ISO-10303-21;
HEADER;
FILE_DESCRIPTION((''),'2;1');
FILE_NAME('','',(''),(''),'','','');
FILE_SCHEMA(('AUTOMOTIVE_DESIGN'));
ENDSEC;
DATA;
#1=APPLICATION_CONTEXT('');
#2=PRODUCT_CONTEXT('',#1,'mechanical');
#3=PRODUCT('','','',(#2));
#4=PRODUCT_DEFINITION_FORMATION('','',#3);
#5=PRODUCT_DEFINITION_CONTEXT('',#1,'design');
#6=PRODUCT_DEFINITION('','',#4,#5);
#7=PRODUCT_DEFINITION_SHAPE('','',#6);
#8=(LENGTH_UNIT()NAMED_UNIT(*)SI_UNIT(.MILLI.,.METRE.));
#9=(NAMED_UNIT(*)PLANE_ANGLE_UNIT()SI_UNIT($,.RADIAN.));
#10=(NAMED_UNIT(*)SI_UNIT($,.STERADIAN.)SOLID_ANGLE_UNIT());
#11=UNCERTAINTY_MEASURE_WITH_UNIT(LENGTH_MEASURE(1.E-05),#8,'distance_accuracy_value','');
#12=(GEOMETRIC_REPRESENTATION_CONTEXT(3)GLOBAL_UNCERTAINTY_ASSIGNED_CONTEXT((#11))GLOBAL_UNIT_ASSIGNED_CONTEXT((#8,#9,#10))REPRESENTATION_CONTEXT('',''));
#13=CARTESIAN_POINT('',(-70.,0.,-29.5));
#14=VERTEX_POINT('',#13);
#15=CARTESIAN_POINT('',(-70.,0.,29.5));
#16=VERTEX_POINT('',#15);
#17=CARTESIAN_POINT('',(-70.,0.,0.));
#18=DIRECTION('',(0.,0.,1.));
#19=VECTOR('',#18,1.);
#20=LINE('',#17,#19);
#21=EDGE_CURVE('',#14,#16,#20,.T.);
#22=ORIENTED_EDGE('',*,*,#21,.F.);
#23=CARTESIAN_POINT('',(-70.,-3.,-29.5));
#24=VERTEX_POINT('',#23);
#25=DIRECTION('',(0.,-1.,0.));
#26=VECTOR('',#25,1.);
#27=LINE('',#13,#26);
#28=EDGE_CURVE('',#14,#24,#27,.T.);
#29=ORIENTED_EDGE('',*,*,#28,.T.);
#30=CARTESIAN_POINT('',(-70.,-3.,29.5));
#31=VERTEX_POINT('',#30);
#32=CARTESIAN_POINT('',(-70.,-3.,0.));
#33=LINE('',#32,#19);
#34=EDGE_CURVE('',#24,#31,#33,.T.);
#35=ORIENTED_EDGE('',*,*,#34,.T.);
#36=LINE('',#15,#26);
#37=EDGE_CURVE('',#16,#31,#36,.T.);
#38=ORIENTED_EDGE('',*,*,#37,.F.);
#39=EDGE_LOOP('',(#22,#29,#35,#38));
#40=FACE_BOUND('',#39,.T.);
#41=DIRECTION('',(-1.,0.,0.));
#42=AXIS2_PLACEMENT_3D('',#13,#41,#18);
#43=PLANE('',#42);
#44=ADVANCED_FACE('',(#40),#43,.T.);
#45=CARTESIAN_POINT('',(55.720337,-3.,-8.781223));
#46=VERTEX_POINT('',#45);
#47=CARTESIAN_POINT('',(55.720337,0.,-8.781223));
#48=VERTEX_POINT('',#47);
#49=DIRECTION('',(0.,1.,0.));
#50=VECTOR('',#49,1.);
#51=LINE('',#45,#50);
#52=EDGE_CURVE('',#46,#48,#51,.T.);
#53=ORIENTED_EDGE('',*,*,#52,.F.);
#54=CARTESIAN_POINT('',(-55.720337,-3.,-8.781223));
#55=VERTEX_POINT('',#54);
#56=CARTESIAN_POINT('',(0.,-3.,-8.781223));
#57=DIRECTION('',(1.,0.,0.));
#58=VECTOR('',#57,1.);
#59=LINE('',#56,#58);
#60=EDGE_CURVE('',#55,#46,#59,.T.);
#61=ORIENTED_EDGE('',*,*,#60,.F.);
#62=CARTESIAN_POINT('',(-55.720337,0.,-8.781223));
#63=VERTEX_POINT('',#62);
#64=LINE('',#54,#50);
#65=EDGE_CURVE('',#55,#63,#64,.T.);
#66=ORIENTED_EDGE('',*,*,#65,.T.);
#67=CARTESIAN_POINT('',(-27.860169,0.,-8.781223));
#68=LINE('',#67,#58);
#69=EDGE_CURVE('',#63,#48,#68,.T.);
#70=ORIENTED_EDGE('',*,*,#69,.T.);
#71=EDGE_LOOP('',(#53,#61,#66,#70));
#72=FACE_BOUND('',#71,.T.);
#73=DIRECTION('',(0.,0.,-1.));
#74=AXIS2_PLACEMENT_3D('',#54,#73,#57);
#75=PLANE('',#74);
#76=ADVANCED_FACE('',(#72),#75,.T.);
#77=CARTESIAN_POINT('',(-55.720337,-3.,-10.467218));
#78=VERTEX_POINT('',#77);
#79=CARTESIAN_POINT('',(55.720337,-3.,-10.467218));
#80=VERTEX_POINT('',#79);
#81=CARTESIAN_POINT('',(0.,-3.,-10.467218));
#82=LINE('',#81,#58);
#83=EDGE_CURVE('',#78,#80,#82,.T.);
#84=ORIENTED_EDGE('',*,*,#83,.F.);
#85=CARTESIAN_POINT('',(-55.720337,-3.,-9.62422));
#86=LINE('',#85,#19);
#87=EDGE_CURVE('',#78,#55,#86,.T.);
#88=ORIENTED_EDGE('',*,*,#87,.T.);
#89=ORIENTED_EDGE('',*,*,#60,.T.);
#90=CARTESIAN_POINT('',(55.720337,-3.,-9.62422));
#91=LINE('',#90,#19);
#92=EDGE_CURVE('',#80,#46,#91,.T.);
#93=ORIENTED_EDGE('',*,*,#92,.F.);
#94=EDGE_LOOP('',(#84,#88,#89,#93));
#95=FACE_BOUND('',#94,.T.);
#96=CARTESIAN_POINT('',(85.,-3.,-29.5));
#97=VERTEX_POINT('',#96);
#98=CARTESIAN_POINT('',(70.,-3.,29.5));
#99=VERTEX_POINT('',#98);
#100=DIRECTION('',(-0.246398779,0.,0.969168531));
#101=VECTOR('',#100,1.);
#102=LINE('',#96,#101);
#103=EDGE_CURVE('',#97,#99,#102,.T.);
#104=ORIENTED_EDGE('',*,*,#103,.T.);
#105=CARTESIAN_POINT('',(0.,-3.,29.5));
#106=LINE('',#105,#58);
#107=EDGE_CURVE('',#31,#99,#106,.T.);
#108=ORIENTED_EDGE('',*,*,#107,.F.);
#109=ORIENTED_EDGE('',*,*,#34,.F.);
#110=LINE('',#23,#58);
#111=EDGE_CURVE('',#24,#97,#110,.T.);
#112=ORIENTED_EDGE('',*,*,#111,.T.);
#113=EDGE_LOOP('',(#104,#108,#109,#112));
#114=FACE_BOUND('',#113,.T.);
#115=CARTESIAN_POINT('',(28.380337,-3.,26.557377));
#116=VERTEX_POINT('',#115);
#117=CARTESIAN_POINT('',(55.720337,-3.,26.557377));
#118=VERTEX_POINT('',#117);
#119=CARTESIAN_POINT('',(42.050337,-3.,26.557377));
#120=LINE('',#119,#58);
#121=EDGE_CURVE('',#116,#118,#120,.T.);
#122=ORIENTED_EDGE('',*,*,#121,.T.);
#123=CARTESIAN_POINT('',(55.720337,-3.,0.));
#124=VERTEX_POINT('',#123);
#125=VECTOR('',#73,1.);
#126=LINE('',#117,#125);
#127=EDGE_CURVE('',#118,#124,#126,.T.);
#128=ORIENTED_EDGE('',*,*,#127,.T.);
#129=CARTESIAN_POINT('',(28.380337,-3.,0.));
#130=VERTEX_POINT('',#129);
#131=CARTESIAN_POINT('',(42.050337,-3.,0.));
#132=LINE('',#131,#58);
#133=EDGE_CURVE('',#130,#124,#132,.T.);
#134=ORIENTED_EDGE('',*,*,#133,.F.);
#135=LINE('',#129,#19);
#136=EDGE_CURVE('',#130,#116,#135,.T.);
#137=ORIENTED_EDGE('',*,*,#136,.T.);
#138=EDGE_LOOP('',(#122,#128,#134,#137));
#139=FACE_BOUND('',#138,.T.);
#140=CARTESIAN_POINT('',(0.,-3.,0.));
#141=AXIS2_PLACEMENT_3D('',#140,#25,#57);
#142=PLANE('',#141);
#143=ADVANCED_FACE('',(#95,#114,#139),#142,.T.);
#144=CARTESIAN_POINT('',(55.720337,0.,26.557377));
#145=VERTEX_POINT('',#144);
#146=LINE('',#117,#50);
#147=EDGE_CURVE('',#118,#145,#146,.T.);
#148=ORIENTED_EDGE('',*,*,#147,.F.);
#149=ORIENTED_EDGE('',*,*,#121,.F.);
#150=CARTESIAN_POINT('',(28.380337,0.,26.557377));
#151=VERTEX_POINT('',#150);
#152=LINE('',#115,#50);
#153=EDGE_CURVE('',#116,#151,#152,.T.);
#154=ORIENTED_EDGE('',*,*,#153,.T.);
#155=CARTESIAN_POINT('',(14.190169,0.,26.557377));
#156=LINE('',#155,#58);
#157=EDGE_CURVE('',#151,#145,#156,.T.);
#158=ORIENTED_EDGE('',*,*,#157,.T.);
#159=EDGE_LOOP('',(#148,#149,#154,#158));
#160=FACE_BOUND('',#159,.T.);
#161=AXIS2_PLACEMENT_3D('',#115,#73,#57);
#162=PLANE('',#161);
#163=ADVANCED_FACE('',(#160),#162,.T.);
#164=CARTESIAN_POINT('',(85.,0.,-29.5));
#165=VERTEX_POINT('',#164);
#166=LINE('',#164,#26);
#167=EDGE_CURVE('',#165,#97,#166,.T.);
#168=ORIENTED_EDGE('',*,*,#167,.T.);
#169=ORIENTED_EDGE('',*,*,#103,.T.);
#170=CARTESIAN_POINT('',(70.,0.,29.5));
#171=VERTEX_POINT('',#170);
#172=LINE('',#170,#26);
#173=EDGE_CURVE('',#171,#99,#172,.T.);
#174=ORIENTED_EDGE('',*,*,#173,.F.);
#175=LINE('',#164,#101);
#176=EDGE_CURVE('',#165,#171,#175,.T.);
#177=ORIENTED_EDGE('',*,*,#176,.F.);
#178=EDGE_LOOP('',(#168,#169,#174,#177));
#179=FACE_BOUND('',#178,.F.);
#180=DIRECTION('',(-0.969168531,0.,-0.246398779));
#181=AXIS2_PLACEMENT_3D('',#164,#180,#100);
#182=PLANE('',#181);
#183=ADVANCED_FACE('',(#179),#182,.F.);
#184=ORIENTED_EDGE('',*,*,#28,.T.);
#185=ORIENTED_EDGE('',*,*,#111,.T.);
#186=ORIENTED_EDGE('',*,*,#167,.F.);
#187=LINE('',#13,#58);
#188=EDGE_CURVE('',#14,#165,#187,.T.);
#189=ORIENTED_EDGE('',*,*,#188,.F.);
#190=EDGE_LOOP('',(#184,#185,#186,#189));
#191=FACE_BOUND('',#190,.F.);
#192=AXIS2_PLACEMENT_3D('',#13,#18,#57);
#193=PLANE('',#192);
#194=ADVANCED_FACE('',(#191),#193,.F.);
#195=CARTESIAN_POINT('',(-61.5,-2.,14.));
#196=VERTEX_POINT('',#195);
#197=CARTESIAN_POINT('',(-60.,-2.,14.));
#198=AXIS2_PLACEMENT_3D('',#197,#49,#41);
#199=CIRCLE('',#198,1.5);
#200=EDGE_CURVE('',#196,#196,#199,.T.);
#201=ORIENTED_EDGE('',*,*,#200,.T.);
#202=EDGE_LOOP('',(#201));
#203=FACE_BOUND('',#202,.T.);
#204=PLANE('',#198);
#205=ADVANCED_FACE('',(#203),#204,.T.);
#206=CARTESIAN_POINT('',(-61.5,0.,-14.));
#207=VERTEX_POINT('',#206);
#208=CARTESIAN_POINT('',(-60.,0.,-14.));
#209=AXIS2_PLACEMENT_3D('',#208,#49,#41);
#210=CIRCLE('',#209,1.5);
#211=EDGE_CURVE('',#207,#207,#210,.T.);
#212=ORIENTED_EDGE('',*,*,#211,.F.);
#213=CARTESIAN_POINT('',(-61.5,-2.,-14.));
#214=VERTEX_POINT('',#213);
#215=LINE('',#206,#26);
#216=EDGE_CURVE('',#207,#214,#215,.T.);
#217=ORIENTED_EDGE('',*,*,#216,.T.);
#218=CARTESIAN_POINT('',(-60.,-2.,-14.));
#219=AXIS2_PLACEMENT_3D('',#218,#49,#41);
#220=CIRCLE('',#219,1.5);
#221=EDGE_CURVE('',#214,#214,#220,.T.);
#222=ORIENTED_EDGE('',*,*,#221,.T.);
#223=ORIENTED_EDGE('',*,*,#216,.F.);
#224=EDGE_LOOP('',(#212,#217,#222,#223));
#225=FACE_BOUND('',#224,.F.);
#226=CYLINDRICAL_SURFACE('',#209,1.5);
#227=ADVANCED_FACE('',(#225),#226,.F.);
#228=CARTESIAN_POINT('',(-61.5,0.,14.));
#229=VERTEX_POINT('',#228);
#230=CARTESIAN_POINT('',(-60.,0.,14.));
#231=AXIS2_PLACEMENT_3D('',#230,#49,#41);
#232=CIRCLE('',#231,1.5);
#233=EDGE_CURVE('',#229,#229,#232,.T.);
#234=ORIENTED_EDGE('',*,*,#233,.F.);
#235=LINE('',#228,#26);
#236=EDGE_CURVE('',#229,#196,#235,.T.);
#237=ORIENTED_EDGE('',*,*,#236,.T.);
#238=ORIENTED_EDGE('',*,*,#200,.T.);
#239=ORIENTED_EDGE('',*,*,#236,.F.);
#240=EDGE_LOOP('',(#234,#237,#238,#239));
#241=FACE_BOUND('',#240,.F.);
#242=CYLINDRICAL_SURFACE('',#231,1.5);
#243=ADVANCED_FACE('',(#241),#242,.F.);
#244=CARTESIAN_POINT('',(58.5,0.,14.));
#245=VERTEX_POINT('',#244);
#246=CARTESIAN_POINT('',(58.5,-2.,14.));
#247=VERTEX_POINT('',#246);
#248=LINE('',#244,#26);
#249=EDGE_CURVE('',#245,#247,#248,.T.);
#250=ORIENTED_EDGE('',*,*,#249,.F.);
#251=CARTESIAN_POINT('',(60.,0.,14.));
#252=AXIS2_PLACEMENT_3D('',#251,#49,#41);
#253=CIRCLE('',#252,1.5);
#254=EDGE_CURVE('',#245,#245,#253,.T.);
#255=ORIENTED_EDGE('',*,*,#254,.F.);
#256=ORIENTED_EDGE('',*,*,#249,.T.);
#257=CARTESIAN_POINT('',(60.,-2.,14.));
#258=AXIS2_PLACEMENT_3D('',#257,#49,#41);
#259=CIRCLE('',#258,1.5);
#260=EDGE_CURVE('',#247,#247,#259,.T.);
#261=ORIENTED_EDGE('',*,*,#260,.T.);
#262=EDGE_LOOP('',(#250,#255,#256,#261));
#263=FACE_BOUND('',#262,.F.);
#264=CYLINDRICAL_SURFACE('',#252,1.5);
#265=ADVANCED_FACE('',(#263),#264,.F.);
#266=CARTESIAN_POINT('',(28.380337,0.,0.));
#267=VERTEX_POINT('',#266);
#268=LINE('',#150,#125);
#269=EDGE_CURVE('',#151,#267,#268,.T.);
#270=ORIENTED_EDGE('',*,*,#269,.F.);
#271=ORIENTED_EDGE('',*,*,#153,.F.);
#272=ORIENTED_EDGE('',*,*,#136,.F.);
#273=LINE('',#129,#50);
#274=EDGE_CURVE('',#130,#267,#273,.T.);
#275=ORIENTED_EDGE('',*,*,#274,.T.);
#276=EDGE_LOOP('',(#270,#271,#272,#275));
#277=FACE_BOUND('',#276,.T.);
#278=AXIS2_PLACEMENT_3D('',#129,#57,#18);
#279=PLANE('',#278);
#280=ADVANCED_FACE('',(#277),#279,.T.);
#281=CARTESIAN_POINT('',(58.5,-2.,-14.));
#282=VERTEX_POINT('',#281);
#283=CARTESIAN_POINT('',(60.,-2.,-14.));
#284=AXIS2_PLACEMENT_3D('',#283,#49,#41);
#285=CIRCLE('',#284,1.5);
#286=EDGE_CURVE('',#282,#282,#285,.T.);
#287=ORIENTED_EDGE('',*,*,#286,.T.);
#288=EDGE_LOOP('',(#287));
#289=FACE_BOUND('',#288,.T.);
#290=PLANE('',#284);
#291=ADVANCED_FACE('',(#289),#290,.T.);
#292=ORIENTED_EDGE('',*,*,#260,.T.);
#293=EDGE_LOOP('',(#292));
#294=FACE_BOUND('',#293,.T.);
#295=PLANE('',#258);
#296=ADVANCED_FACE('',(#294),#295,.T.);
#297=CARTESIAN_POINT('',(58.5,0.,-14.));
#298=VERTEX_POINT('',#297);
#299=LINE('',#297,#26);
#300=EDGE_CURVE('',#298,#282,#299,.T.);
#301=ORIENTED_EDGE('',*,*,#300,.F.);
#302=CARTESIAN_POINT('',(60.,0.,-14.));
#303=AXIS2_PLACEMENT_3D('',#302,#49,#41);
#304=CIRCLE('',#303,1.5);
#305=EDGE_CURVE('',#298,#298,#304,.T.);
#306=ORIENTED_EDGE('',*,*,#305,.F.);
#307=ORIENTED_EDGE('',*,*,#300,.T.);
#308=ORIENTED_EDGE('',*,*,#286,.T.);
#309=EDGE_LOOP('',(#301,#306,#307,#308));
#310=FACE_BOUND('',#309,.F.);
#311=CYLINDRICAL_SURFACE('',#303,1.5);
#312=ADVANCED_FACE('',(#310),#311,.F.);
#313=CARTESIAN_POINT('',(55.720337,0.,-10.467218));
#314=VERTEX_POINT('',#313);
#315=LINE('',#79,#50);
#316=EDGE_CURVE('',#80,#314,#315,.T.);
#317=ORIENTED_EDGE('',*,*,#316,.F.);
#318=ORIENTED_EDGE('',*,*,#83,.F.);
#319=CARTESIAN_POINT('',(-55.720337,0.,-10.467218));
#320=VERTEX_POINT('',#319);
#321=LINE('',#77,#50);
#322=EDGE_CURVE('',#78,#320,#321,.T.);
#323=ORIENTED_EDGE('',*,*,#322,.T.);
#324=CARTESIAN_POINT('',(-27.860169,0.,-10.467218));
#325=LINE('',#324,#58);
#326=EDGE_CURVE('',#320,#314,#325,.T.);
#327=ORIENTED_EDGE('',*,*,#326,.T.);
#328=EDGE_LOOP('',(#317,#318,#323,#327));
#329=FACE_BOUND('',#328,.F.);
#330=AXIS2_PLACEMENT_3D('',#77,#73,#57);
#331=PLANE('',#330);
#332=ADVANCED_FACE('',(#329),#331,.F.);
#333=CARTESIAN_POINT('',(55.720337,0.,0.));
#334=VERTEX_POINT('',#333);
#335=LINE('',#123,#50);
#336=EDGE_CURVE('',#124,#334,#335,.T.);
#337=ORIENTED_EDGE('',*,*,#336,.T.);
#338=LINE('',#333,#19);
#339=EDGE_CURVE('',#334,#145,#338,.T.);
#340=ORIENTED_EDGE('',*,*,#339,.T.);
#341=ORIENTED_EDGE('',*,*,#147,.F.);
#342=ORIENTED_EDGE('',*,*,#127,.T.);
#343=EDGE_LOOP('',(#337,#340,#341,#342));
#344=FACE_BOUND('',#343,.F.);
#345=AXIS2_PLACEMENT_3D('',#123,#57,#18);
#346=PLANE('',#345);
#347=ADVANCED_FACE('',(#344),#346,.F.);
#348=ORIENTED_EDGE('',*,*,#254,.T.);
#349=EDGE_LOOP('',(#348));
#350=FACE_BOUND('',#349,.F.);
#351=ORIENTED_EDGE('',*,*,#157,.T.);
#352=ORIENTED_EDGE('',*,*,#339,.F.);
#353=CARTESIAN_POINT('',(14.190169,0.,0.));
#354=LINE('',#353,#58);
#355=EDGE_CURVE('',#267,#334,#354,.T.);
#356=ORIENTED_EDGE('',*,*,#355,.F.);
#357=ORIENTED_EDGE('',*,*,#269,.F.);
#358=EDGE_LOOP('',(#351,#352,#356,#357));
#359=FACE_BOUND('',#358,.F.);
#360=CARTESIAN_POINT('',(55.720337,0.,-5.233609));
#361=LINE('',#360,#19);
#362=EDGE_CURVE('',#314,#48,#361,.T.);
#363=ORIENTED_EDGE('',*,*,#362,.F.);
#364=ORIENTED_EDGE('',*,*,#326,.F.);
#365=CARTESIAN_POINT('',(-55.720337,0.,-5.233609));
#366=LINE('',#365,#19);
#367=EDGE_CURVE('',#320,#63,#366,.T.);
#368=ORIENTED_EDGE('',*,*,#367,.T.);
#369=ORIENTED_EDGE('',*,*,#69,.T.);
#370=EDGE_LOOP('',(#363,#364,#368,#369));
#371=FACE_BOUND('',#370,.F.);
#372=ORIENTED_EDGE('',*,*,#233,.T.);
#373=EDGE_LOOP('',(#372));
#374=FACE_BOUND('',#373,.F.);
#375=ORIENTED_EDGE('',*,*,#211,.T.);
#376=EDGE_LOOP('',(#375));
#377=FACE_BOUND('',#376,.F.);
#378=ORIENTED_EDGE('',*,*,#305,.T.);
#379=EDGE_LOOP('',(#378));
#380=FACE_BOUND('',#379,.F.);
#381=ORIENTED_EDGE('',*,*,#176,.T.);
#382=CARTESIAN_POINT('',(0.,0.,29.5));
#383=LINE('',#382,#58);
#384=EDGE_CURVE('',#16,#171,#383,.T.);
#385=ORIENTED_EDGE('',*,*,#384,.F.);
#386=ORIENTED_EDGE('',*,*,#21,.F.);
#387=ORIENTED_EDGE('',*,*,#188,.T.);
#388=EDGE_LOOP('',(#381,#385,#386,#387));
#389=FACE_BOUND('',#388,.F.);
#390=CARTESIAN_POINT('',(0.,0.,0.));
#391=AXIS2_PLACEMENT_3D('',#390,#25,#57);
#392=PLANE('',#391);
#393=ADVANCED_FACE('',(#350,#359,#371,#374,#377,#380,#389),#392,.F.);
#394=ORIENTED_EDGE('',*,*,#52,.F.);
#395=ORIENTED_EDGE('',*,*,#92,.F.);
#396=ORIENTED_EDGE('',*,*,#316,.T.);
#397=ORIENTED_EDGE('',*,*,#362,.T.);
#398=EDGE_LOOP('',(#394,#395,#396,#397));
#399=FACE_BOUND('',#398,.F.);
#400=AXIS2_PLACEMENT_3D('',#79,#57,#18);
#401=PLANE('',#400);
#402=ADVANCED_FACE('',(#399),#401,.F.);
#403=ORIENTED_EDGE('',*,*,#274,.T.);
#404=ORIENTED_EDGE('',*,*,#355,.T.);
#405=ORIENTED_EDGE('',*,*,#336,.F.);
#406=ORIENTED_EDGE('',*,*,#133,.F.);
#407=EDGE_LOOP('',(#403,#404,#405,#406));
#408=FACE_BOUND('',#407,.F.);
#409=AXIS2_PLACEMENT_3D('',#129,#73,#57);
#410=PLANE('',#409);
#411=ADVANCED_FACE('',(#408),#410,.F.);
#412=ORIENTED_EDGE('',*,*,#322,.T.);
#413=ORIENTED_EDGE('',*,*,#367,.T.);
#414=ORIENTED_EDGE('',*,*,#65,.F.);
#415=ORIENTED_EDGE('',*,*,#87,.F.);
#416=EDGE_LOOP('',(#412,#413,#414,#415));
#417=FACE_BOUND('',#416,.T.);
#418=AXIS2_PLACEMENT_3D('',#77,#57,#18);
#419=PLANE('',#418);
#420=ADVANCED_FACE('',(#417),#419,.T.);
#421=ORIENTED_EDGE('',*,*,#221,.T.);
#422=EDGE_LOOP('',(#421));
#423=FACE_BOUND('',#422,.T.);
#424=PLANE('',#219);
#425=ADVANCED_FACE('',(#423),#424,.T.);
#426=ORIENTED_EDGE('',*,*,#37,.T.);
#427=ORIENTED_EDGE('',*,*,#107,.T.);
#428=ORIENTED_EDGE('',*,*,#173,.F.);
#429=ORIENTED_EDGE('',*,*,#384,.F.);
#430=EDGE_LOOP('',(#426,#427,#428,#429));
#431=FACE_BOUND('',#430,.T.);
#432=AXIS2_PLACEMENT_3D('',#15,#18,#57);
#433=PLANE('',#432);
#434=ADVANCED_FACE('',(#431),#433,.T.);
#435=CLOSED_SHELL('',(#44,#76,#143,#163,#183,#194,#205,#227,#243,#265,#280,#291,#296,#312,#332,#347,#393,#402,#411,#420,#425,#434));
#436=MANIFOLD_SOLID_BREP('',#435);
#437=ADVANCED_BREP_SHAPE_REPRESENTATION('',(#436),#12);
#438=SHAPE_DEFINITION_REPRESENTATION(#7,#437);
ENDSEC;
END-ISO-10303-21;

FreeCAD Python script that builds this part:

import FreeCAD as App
import Part
import Sketcher

V = App.Vector
Q = App.Units.Quantity

doc = App.newDocument("Part")
body = doc.addObject("PartDesign::Body", "Body")

# Sketch on XZ plane
sketch1 = body.newObject("Sketcher::SketchObject", "Sketch")
sketch1.AttachmentSupport = (doc.getObject("XZ_Plane"), [""])
sketch1.MapMode = "FlatFace"
sketch1.addGeometry([
    Part.LineSegment(V(-70, 29.5, 0), V(-70, -29.5, 0)),
    Part.LineSegment(V(-70, -29.5, 0), V(85, -29.5, 0)),
    Part.LineSegment(V(85, -29.5, 0), V(70, 29.5, 0)),
    Part.LineSegment(V(70, 29.5, 0), V(-70, 29.5, 0)),
], False)
sketch1.addConstraint([
    Sketcher.Constraint("Coincident", 0, 2, 1, 1),
    Sketcher.Constraint("Coincident", 1, 2, 2, 1),
    Sketcher.Constraint("Coincident", 2, 2, 3, 1),
    Sketcher.Constraint("Coincident", 3, 2, 0, 1),
    Sketcher.Constraint("Vertical", 0),
    Sketcher.Constraint("Horizontal", 1),
    Sketcher.Constraint("Horizontal", 3),
    Sketcher.Constraint("Symmetric", 0, 2, 2, 2, -1, 1),
    Sketcher.Constraint("DistanceX", 1, 1, 1, 2, Q("155 mm")),
    Sketcher.Constraint("DistanceX", 3, 2, 3, 1, Q("140 mm")),
    Sketcher.Constraint("DistanceY", 0, 2, 0, 1, Q("59 mm")),
])
pad1 = body.newObject("PartDesign::Pad", "Pad")
pad1.Profile = sketch1
pad1.Length = 3

# Sketch on XZ plane
sketch2 = body.newObject("Sketcher::SketchObject", "Sketch001")
sketch2.AttachmentSupport = (doc.getObject("XZ_Plane"), [""])
sketch2.MapMode = "FlatFace"
sketch2.AttachmentOffset = App.Placement(V(0, 0, 3), App.Rotation())
sketch2.addGeometry([
    Part.LineSegment(V(-55.720337, -8.781223, 0), V(-55.720337, -10.467218, 0)),
    Part.LineSegment(V(-55.720337, -10.467218, 0), V(55.720337, -10.467218, 0)),
    Part.LineSegment(V(55.720337, -10.467218, 0), V(55.720337, -8.781223, 0)),
    Part.LineSegment(V(55.720337, -8.781223, 0), V(-55.720337, -8.781223, 0)),
], False)
sketch2.addConstraint([
    Sketcher.Constraint("Coincident", 0, 2, 1, 1),
    Sketcher.Constraint("Coincident", 1, 2, 2, 1),
    Sketcher.Constraint("Coincident", 2, 2, 3, 1),
    Sketcher.Constraint("Coincident", 3, 2, 0, 1),
    Sketcher.Constraint("Vertical", 0),
    Sketcher.Constraint("Horizontal", 1),
    Sketcher.Constraint("Vertical", 2),
    Sketcher.Constraint("Horizontal", 3),
    Sketcher.Constraint("DistanceX", 1, 1, 1, 2, Q("111.440674 mm")),
    Sketcher.Constraint("DistanceY", 0, 2, 0, 1, Q("1.685995 mm")),
    Sketcher.Constraint("DistanceX", 0, 2, -1, 1, Q("55.720337 mm")),
    Sketcher.Constraint("DistanceY", 0, 2, -1, 1, Q("10.467218 mm")),
])
pocket1 = body.newObject("PartDesign::Pocket", "Pocket")
pocket1.Profile = sketch2
pocket1.Length = 25

# Sketch on XZ plane
sketch3 = body.newObject("Sketcher::SketchObject", "Sketch002")
sketch3.AttachmentSupport = (doc.getObject("XZ_Plane"), [""])
sketch3.MapMode = "FlatFace"
sketch3.AttachmentOffset = App.Placement(V(0, 0, 3), App.Rotation())
sketch3.addGeometry([
    Part.LineSegment(V(28.380337, 22.218777, 0), V(28.380337, 3.218777, 0)),
    Part.LineSegment(V(28.380337, 3.218777, 0), V(55.720337, 3.218777, 0)),
    Part.LineSegment(V(55.720337, 3.218777, 0), V(55.720337, 22.218777, 0)),
    Part.LineSegment(V(55.720337, 22.218777, 0), V(28.380337, 22.218777, 0)),
], False)
sketch3.addConstraint([
    Sketcher.Constraint("Coincident", 0, 2, 1, 1),
    Sketcher.Constraint("Coincident", 1, 2, 2, 1),
    Sketcher.Constraint("Coincident", 2, 2, 3, 1),
    Sketcher.Constraint("Coincident", 3, 2, 0, 1),
    Sketcher.Constraint("Vertical", 0),
    Sketcher.Constraint("Horizontal", 1),
    Sketcher.Constraint("Vertical", 2),
    Sketcher.Constraint("Horizontal", 3),
    Sketcher.Constraint("DistanceY", 0, 2, 0, 1, Q("19 mm")),
    Sketcher.Constraint("DistanceX", 1, 1, 1, 2, Q("27.34 mm")),
    Sketcher.Constraint("DistanceX", -1, 1, 0, 2, Q("28.380337 mm")),
    Sketcher.Constraint("DistanceY", -1, 1, 0, 2, Q("3.218777 mm")),
])
pocket2 = body.newObject("PartDesign::Pocket", "Pocket001")
pocket2.Profile = sketch3
pocket2.Length = 25

# Sketch on XZ plane
sketch4 = body.newObject("Sketcher::SketchObject", "Sketch003")
sketch4.AttachmentSupport = (doc.getObject("XZ_Plane"), [""])
sketch4.MapMode = "FlatFace"
sketch4.addGeometry([
    Part.Circle(V(-60, 14, 0), V(0, 0, 1), 1.5),
    Part.Circle(V(60, 14, 0), V(0, 0, 1), 1.5),
    Part.Circle(V(-60, -14, 0), V(0, 0, 1), 1.5),
    Part.Circle(V(60, -14, 0), V(0, 0, 1), 1.5),
], False)
sketch4.addConstraint([
    Sketcher.Constraint("Equal", 0, 1),
    Sketcher.Constraint("Equal", 1, 2),
    Sketcher.Constraint("Equal", 2, 3),
    Sketcher.Constraint("Symmetric", 1, 3, 2, 3, -1, 1),
    Sketcher.Constraint("Symmetric", 0, 3, 3, 3, -1, 1),
    Sketcher.Constraint("Symmetric", 0, 3, 1, 3, -2),
    Sketcher.Constraint("Diameter", 0, Q("3 mm")),
    Sketcher.Constraint("DistanceX", 0, 3, -1, 1, Q("60 mm")),
    Sketcher.Constraint("DistanceY", -1, 1, 0, 3, Q("14 mm")),
])
pocket3 = body.newObject("PartDesign::Pocket", "Pocket002")
pocket3.Profile = sketch4
pocket3.Length = 2
pocket3.Reversed = True

# Sketch on XZ plane
sketch5 = body.newObject("Sketcher::SketchObject", "Sketch004")
sketch5.AttachmentSupport = (doc.getObject("XZ_Plane"), [""])
sketch5.MapMode = "FlatFace"
sketch5.AttachmentOffset = App.Placement(V(0, 0, 3), App.Rotation())
sketch5.addGeometry([
    Part.LineSegment(V(28.380337, 26.557377, 0), V(28.380337, 0, 0)),
    Part.LineSegment(V(28.380337, 0, 0), V(55.720337, 0, 0)),
    Part.LineSegment(V(55.720337, 0, 0), V(55.720337, 26.557377, 0)),
    Part.LineSegment(V(55.720337, 26.557377, 0), V(28.380337, 26.557377, 0)),
], False)
sketch5.addConstraint([
    Sketcher.Constraint("Coincident", 0, 2, 1, 1),
    Sketcher.Constraint("Coincident", 1, 2, 2, 1),
    Sketcher.Constraint("Coincident", 2, 2, 3, 1),
    Sketcher.Constraint("Coincident", 3, 2, 0, 1),
    Sketcher.Constraint("Vertical", 0),
    Sketcher.Constraint("Horizontal", 1),
    Sketcher.Constraint("Vertical", 2),
    Sketcher.Constraint("Horizontal", 3),
    Sketcher.Constraint("PointOnObject", 0, 2, -1),
    Sketcher.Constraint("DistanceX", 1, 1, 1, 2, Q("27.34 mm")),
    Sketcher.Constraint("DistanceY", 0, 2, 0, 1, Q("26.557377 mm")),
    Sketcher.Constraint("DistanceX", -1, 1, 0, 2, Q("28.380337 mm")),
])
pocket4 = body.newObject("PartDesign::Pocket", "Pocket003")
pocket4.Profile = sketch5
pocket4.Length = 25

doc.recompute()
